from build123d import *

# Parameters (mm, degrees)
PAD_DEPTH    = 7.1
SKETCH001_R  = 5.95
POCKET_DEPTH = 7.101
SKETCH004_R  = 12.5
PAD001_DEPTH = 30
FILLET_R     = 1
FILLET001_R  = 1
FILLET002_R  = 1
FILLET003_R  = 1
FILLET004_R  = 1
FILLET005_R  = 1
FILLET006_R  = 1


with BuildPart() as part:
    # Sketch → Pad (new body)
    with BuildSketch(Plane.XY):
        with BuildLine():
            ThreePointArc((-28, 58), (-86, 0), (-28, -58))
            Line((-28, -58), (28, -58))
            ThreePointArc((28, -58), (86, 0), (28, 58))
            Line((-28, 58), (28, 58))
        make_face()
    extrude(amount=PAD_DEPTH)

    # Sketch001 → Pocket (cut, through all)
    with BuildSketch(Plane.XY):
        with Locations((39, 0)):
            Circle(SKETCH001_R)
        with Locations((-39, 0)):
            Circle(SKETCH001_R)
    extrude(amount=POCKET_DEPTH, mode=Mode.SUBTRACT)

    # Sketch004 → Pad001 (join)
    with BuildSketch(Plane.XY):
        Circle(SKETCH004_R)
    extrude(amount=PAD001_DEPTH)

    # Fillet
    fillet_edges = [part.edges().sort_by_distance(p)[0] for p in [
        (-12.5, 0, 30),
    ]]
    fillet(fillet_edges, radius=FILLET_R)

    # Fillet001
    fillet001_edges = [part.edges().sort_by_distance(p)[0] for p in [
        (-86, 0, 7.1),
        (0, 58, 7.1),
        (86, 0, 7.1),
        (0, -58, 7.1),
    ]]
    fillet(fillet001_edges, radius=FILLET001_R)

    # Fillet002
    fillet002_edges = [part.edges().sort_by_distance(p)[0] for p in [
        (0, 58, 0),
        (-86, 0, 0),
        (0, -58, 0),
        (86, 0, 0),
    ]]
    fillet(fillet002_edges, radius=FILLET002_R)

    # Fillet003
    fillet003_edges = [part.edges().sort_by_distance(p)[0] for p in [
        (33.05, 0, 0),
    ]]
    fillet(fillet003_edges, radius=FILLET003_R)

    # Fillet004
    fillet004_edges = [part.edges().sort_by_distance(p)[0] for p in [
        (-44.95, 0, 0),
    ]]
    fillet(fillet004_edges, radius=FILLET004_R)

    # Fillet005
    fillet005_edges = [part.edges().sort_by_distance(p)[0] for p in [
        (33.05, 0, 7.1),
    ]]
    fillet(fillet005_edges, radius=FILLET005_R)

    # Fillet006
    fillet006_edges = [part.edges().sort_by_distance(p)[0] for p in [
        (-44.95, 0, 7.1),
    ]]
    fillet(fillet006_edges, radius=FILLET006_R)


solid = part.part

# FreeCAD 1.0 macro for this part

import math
import FreeCAD as App
import Part
import Sketcher
from FreeCAD import Vector


def edges_at(feature, points):
    """Names of the edges that pass closest to the given points."""
    edges = feature.Shape.Edges
    near = lambda p: min(range(len(edges)), key=lambda i: edges[i].distToShape(Part.Vertex(*p))[0])
    return sorted({f"Edge{near(p) + 1}" for p in points})

doc = App.newDocument("Part")
body = doc.addObject("PartDesign::Body", "Body")

sketch1 = body.newObject("Sketcher::SketchObject", "Sketch")
sketch1.AttachmentSupport = (doc.getObject("XY_Plane"), [""])
sketch1.MapMode = "FlatFace"
sketch1.addGeometry([
    Part.ArcOfCircle(Part.Circle(Vector(-28, 0, 0), Vector(0, 0, 1), 58), math.radians(90), math.radians(270)),
    Part.LineSegment(Vector(-28, -58, 0), Vector(28, -58, 0)),
    Part.ArcOfCircle(Part.Circle(Vector(28, 0, 0), Vector(0, 0, 1), 58), math.radians(-90), math.radians(90)),
    Part.LineSegment(Vector(28, 58, 0), Vector(-28, 58, 0)),
], False)
sketch1.addConstraint([
    Sketcher.Constraint("Tangent", 0, 2, 1, 1),
    Sketcher.Constraint("Tangent", 1, 2, 2, 1),
    Sketcher.Constraint("Tangent", 2, 2, 3, 1),
    Sketcher.Constraint("Tangent", 3, 2, 0, 1),
    Sketcher.Constraint("Horizontal", 1),
    Sketcher.Constraint("Horizontal", 3),
    Sketcher.Constraint("Symmetric", 0, 3, 2, 3, -1, 1),
    Sketcher.Constraint("Radius", 0, 58.0),
    Sketcher.Constraint("DistanceX", 1, 1, 1, 2, 56.0),
])
pad1 = body.newObject("PartDesign::Pad", "Pad")
pad1.Profile = sketch1
pad1.Length = 7.1

sketch2 = body.newObject("Sketcher::SketchObject", "Sketch001")
sketch2.AttachmentSupport = (doc.getObject("XY_Plane"), [""])
sketch2.MapMode = "FlatFace"
sketch2.addGeometry([
    Part.Circle(Vector(39, 0, 0), Vector(0, 0, 1), 5.95),
    Part.Circle(Vector(-39, 0, 0), Vector(0, 0, 1), 5.95),
], False)
sketch2.addConstraint([
    Sketcher.Constraint("Equal", 0, 1),
    Sketcher.Constraint("Symmetric", 0, 3, 1, 3, -1, 1),
    Sketcher.Constraint("PointOnObject", 0, 3, -1),
    Sketcher.Constraint("Diameter", 0, 11.9),
    Sketcher.Constraint("DistanceX", -1, 1, 0, 3, 39.0),
])
pocket1 = body.newObject("PartDesign::Pocket", "Pocket")
pocket1.Profile = sketch2
pocket1.Type = "ThroughAll"
pocket1.Reversed = True

sketch3 = body.newObject("Sketcher::SketchObject", "Sketch002")
sketch3.AttachmentSupport = (doc.getObject("XY_Plane"), [""])
sketch3.MapMode = "FlatFace"
sketch3.addGeometry(Part.Circle(Vector(0, 0, 0), Vector(0, 0, 1), 12.5), False)
sketch3.addConstraint([
    Sketcher.Constraint("Coincident", 0, 3, -1, 1),
    Sketcher.Constraint("Diameter", 0, 25.0),
])
pad2 = body.newObject("PartDesign::Pad", "Pad001")
pad2.Profile = sketch3
pad2.Length = 30
doc.recompute()

fillet = body.newObject("PartDesign::Fillet", "Fillet")
fillet.Base = (pad2, edges_at(pad2, [(-12.5, 0, 30)]))
fillet.Radius = 1
doc.recompute()

fillet2 = body.newObject("PartDesign::Fillet", "Fillet001")
fillet2.Base = (fillet, edges_at(fillet, [
    (-86, 0, 7.1),
    (0, 58, 7.1),
    (86, 0, 7.1),
    (0, -58, 7.1),
]))
fillet2.Radius = 1
doc.recompute()

fillet3 = body.newObject("PartDesign::Fillet", "Fillet002")
fillet3.Base = (fillet2, edges_at(fillet2, [
    (0, 58, 0),
    (-86, 0, 0),
    (0, -58, 0),
    (86, 0, 0),
]))
fillet3.Radius = 1
doc.recompute()

fillet4 = body.newObject("PartDesign::Fillet", "Fillet003")
fillet4.Base = (fillet3, edges_at(fillet3, [(33.05, 0, 0)]))
fillet4.Radius = 1
doc.recompute()

fillet5 = body.newObject("PartDesign::Fillet", "Fillet004")
fillet5.Base = (fillet4, edges_at(fillet4, [(-44.95, 0, 0)]))
fillet5.Radius = 1
doc.recompute()

fillet6 = body.newObject("PartDesign::Fillet", "Fillet005")
fillet6.Base = (fillet5, edges_at(fillet5, [(33.05, 0, 7.1)]))
fillet6.Radius = 1
doc.recompute()

fillet7 = body.newObject("PartDesign::Fillet", "Fillet006")
fillet7.Base = (fillet6, edges_at(fillet6, [(-44.95, 0, 7.1)]))
fillet7.Radius = 1

doc.recompute()
